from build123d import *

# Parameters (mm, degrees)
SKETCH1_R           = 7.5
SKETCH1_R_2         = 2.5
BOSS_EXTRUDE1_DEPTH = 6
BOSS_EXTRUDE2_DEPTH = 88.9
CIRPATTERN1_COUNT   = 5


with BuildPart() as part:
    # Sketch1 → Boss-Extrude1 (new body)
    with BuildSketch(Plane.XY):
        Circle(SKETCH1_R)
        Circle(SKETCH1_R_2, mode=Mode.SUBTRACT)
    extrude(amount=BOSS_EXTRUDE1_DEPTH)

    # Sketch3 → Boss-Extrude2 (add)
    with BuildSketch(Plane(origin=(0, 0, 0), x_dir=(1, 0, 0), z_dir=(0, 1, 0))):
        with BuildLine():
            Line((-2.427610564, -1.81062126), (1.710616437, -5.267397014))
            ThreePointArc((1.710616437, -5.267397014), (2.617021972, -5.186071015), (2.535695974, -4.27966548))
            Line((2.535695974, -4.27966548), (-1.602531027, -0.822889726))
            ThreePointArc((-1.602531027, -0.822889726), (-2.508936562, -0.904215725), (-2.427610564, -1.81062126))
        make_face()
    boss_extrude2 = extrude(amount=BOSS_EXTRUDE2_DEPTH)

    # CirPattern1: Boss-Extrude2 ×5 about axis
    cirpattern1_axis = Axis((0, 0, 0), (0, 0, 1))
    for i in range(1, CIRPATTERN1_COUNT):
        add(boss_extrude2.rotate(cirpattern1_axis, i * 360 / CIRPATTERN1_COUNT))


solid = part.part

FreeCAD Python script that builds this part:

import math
import FreeCAD as App
import Part
import Sketcher

V = App.Vector

doc = App.newDocument("Part")
params = doc.addObject("Spreadsheet::Sheet", "Params")
for row, (alias, value) in enumerate([
    ("sketch1_diameter", "15 mm"),
    ("sketch1_diameter2", "5 mm"),
    ("pad1_length", "6 mm"),
    ("pad2_length", "88.9 mm"),
], start=1):
    params.set(f"A{row}", alias)
    params.set(f"B{row}", "=" + value)
    params.setAlias(f"B{row}", alias)

body = doc.addObject("PartDesign::Body", "Body")

sketch1 = doc.addObject("Sketcher::SketchObject", "Sketch")
body.addObject(sketch1)
sketch1.AttachmentSupport = (doc.XY_Plane, [""])
sketch1.MapMode = "FlatFace"
sketch1.addGeometry([
    Part.Circle(V(0, 0, 0), V(0, 0, 1), 7.5),
    Part.Circle(V(0, 0, 0), V(0, 0, 1), 2.5),
], False)
sketch1.addConstraint([
    Sketcher.Constraint("Coincident", 0, 3, -1, 1),
    Sketcher.Constraint("Coincident", 1, 3, -1, 1),
    Sketcher.Constraint("Diameter", 0, 15.0),
    Sketcher.Constraint("Diameter", 1, 5.0),
])
sketch1.setExpression("Constraints[2]", "Params.sketch1_diameter")
sketch1.setExpression("Constraints[3]", "Params.sketch1_diameter2")
pad1 = doc.addObject("PartDesign::Pad", "Pad")
body.addObject(pad1)
pad1.Profile = sketch1
pad1.setExpression("Length", "Params.pad1_length")

sketch2 = doc.addObject("Sketcher::SketchObject", "Sketch001")
body.addObject(sketch2)
sketch2.AttachmentSupport = (doc.XZ_Plane, [""])
sketch2.MapMode = "FlatFace"
sketch2.addGeometry([
    Part.LineSegment(V(-2.4, 1.8, 0), V(1.7, 5.3, 0)),
    Part.ArcOfCircle(Part.Circle(V(2.1, 4.8, 0), V(0, 0, 1), 0.6), math.radians(-50), math.radians(130)),
    Part.LineSegment(V(2.5, 4.3, 0), V(-1.6, 0.8, 0)),
    Part.ArcOfCircle(Part.Circle(V(-2, 1.3, 0), V(0, 0, 1), 0.6), math.radians(130), math.radians(310)),
], False)
sketch2.addConstraint([
    Sketcher.Constraint("Tangent", 0, 2, 1, 2),
    Sketcher.Constraint("Tangent", 1, 1, 2, 1),
    Sketcher.Constraint("Tangent", 2, 2, 3, 2),
    Sketcher.Constraint("Tangent", 3, 1, 0, 1),
    Sketcher.Constraint("Equal", 1, 3),
    Sketcher.Constraint("Radius", 1, 0.6435),
    Sketcher.Constraint("Distance", 0, 5.392052),
    Sketcher.Constraint("DistanceY", -1, 1, 1, 3, 4.773531),
    Sketcher.Constraint("DistanceX", 3, 3, -1, 1, 2.015071),
    Sketcher.Constraint("DistanceX", 2, 2, -1, 1, 1.602531),
])
pad2 = doc.addObject("PartDesign::Pad", "Pad001")
body.addObject(pad2)
pad2.Profile = sketch2
pad2.setExpression("Length", "Params.pad2_length")
pad2.Reversed = True
doc.recompute()

polarpattern = doc.addObject("PartDesign::PolarPattern", "PolarPattern")
body.addObject(polarpattern)
polarpattern.Originals = [pad2]
polarpattern.Axis = (doc.Z_Axis, [""])
polarpattern.Angle = 360
polarpattern.Occurrences = 5
body.Tip = polarpattern

doc.recompute()
